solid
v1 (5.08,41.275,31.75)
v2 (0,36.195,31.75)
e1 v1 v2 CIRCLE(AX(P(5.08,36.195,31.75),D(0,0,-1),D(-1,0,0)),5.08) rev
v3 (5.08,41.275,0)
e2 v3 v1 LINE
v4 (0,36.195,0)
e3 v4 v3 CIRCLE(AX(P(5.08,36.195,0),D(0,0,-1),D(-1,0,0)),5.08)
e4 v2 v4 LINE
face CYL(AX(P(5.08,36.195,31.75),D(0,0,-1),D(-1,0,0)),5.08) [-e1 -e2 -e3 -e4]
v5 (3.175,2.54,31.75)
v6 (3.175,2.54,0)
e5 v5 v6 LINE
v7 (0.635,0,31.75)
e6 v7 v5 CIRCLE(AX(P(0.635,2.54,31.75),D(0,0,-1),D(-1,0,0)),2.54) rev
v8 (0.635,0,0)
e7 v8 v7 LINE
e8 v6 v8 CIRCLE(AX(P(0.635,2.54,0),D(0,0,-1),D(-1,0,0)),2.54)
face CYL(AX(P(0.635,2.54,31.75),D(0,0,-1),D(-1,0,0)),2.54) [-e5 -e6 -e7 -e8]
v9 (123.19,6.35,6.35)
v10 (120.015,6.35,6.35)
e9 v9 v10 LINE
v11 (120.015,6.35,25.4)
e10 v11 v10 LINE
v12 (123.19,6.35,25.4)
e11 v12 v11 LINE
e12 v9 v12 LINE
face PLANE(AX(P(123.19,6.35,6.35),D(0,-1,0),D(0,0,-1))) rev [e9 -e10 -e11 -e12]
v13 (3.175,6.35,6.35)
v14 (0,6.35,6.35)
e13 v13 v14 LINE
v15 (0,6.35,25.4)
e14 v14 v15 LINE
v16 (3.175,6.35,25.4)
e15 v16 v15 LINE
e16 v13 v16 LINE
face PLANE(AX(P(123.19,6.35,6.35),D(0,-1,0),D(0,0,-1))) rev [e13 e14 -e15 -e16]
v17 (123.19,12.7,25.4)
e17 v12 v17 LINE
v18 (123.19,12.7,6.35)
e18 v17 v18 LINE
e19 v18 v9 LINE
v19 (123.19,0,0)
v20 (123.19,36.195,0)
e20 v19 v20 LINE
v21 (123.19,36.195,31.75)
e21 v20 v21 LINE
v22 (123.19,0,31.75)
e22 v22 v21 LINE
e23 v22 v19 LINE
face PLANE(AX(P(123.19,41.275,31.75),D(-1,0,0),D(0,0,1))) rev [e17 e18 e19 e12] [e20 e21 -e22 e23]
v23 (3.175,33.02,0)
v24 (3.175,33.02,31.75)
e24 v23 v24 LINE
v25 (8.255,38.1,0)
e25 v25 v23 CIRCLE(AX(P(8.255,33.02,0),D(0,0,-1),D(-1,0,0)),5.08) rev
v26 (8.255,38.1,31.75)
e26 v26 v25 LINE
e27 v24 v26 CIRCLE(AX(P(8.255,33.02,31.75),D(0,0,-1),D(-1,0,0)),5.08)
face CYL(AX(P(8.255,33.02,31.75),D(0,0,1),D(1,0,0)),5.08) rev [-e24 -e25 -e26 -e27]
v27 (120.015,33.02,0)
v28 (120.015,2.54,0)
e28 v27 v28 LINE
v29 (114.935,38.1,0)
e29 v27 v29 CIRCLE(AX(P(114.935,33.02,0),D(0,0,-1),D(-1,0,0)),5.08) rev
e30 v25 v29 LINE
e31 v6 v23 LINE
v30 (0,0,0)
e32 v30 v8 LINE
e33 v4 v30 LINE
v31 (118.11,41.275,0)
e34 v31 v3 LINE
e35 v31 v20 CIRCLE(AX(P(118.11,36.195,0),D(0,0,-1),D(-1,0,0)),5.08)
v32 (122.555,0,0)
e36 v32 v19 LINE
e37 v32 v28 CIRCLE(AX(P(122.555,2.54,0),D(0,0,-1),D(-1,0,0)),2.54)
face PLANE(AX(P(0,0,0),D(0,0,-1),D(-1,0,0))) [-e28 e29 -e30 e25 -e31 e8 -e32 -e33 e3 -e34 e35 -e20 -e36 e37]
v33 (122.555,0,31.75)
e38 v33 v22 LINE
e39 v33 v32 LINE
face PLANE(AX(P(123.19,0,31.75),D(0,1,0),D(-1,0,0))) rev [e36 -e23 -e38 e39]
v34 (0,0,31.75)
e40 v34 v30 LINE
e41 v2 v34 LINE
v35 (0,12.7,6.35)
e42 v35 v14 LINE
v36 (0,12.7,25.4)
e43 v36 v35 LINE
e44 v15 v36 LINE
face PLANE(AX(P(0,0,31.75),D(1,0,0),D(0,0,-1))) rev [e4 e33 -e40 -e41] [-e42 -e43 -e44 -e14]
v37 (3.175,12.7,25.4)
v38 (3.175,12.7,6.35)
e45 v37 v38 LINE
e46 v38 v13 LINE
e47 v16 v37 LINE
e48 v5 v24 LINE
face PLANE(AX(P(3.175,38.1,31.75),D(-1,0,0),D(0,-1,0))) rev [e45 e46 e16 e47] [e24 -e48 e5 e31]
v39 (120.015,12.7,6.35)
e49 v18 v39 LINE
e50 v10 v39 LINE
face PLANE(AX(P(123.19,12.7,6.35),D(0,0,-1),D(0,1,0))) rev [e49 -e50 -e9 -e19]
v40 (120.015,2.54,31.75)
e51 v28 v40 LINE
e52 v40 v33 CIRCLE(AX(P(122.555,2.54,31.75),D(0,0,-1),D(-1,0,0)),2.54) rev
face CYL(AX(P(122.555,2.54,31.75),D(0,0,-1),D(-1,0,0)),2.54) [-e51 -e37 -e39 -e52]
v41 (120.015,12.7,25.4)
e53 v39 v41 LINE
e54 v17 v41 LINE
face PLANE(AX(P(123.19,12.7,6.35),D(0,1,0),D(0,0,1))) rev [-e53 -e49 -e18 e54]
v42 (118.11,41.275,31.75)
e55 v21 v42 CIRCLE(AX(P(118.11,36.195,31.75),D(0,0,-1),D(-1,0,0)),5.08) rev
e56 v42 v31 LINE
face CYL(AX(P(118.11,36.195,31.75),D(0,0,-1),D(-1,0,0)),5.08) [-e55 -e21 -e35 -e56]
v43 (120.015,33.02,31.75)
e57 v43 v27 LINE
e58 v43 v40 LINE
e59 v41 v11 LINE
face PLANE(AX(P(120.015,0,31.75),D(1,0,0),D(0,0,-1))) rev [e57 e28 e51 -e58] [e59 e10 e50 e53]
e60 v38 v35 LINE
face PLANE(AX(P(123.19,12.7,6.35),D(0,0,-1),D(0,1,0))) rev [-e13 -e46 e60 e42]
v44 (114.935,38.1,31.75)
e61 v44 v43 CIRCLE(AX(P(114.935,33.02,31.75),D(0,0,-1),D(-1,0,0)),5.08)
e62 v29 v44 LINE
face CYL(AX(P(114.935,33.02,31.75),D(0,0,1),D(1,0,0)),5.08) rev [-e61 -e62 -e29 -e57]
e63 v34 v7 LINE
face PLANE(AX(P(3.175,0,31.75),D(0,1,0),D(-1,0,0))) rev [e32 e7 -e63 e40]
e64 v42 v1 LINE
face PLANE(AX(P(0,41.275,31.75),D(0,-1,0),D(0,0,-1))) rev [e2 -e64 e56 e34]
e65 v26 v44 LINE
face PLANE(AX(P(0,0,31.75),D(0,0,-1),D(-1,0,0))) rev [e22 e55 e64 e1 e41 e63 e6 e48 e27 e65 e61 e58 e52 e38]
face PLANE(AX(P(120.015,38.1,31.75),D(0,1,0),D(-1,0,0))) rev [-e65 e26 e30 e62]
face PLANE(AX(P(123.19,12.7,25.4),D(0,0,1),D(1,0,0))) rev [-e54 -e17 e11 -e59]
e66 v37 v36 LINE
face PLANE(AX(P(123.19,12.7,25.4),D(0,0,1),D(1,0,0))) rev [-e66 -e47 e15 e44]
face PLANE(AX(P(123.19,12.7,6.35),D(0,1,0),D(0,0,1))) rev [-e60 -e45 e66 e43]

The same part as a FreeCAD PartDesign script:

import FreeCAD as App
import Part
import Sketcher
Q = App.Units.Quantity


def edges_at(feature, points):
    """Names of the edges that pass closest to the given points."""
    edges = feature.Shape.Edges
    near = lambda p: min(range(len(edges)), key=lambda i: edges[i].distToShape(Part.Vertex(*p))[0])
    return sorted({f"Edge{near(p) + 1}" for p in points})

doc = App.newDocument("Part")
body = doc.addObject("PartDesign::Body", "Body")

# Sketch on XY plane
sketch1 = body.newObject("Sketcher::SketchObject", "Sketch")
sketch1.AttachmentSupport = (doc.getObject("XY_Plane"), [""])
sketch1.MapMode = "FlatFace"
sketch1.addGeometry([
    Part.LineSegment(App.Vector(0, 41.3, 0), App.Vector(0, 0, 0)),  # 0
    Part.LineSegment(App.Vector(0, 0, 0), App.Vector(3.2, 0, 0)),  # 1
    Part.LineSegment(App.Vector(3.2, 0, 0), App.Vector(3.2, 38.1, 0)),  # 2
    Part.LineSegment(App.Vector(3.2, 38.1, 0), App.Vector(120, 38.1, 0)),  # 3
    Part.LineSegment(App.Vector(120, 38.1, 0), App.Vector(120, 0, 0)),  # 4
    Part.LineSegment(App.Vector(120, 0, 0), App.Vector(123.2, 0, 0)),  # 5
    Part.LineSegment(App.Vector(123.2, 0, 0), App.Vector(123.2, 41.3, 0)),  # 6
    Part.LineSegment(App.Vector(123.2, 41.3, 0), App.Vector(0, 41.3, 0)),  # 7
], False)
sketch1.addConstraint([
    Sketcher.Constraint("Coincident", 0, 2, 1, 1),
    Sketcher.Constraint("Coincident", 1, 2, 2, 1),
    Sketcher.Constraint("Coincident", 2, 2, 3, 1),
    Sketcher.Constraint("Coincident", 3, 2, 4, 1),
    Sketcher.Constraint("Coincident", 4, 2, 5, 1),
    Sketcher.Constraint("Coincident", 5, 2, 6, 1),
    Sketcher.Constraint("Coincident", 6, 2, 7, 1),
    Sketcher.Constraint("Coincident", 7, 2, 0, 1),
    Sketcher.Constraint("Vertical", 0),
    Sketcher.Constraint("Horizontal", 1),
    Sketcher.Constraint("Vertical", 2),
    Sketcher.Constraint("Horizontal", 3),
    Sketcher.Constraint("Vertical", 4),
    Sketcher.Constraint("Horizontal", 5),
    Sketcher.Constraint("Vertical", 6),
    Sketcher.Constraint("Horizontal", 7),
    Sketcher.Constraint("Coincident", 0, 2, -1, 1),
    Sketcher.Constraint("PointOnObject", 4, 2, -1),
    Sketcher.Constraint("Equal", 1, 5),
    Sketcher.Constraint("DistanceX", 3, 1, 3, 2, Q("4.6 in")),
    Sketcher.Constraint("DistanceY", 2, 1, 2, 2, Q("1.5 in")),
    Sketcher.Constraint("DistanceX", 7, 2, 7, 1, Q("4.85 in")),
    Sketcher.Constraint("DistanceY", 0, 2, 0, 1, Q("1.625 in")),
])
pad1 = body.newObject("PartDesign::Pad", "Pad")
pad1.Profile = sketch1
pad1.Length = Q("1.25 in")

# Sketch on YZ plane
sketch2 = body.newObject("Sketcher::SketchObject", "Sketch001")
sketch2.AttachmentSupport = (doc.getObject("YZ_Plane"), [""])
sketch2.MapMode = "FlatFace"
sketch2.addGeometry([
    Part.LineSegment(App.Vector(13, 6, 0), App.Vector(6, 6, 0)),
    Part.LineSegment(App.Vector(6, 6, 0), App.Vector(6, 25, 0)),
    Part.LineSegment(App.Vector(6, 25, 0), App.Vector(13, 25, 0)),
    Part.LineSegment(App.Vector(13, 25, 0), App.Vector(13, 6, 0)),
], False)
sketch2.addConstraint([
    Sketcher.Constraint("Coincident", 0, 2, 1, 1),
    Sketcher.Constraint("Coincident", 1, 2, 2, 1),
    Sketcher.Constraint("Coincident", 2, 2, 3, 1),
    Sketcher.Constraint("Coincident", 3, 2, 0, 1),
    Sketcher.Constraint("Horizontal", 0),
    Sketcher.Constraint("Vertical", 1),
    Sketcher.Constraint("Horizontal", 2),
    Sketcher.Constraint("Vertical", 3),
    Sketcher.Constraint("DistanceY", -1, 1, 1, 2, Q("1 in")),
    Sketcher.Constraint("DistanceX", 0, 2, 0, 1, Q("0.25 in")),
    Sketcher.Constraint("DistanceY", 1, 1, 1, 2, Q("0.75 in")),
    Sketcher.Constraint("DistanceX", -1, 1, 2, 2, Q("0.5 in")),
])
pocket1 = body.newObject("PartDesign::Pocket", "Pocket")
pocket1.Profile = sketch2
pocket1.Type = "ThroughAll"
pocket1.Reversed = True
doc.recompute()

fillet = body.newObject("PartDesign::Fillet", "Fillet")
fillet.Base = (pocket1, edges_at(pocket1, [
    (0, 41.275, 15.875),
    (123.19, 41.275, 15.875),
    (120.015, 38.1, 15.875),
    (3.175, 38.1, 15.875),
]))
fillet.Radius = Q("0.2 in")
doc.recompute()

fillet2 = body.newObject("PartDesign::Fillet", "Fillet001")
fillet2.Base = (fillet, edges_at(fillet, [(120.015, 0, 15.875), (3.175, 0, 15.875)]))
fillet2.Radius = Q("0.1 in")

doc.recompute()
